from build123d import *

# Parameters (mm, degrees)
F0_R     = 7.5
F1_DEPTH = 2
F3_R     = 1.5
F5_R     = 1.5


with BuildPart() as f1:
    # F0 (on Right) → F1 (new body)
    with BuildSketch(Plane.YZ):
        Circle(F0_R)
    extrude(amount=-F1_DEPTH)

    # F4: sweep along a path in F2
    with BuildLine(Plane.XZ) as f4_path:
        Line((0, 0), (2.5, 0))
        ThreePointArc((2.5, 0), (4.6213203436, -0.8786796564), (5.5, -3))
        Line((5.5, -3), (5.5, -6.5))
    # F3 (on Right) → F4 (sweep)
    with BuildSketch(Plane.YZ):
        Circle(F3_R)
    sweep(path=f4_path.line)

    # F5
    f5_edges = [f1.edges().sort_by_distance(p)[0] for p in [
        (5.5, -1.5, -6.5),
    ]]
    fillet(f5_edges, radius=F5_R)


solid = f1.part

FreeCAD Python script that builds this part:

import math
import FreeCAD as App
import Part
import Sketcher
from FreeCAD import Vector


def edges_at(feature, points):
    """Names of the edges that pass closest to the given points."""
    edges = feature.Shape.Edges
    near = lambda p: min(range(len(edges)), key=lambda i: edges[i].distToShape(Part.Vertex(*p))[0])
    return sorted({f"Edge{near(p) + 1}" for p in points})

doc = App.newDocument("Part")
params = doc.addObject("Spreadsheet::Sheet", "Params")
for row, (alias, value) in enumerate([
    ("sketch1_diameter", "15 mm"),
    ("pad1_length", "2 mm"),
    ("sketch2_diameter", "3 mm"),
    ("sketch3_radius", "3 mm"),
    ("sketch3_width", "2.5 mm"),
    ("sketch3_height", "3.5 mm"),
    ("fillet_radius", "1.5 mm"),
], start=1):
    params.set(f"A{row}", alias)
    params.set(f"B{row}", "=" + value)
    params.setAlias(f"B{row}", alias)

body = doc.addObject("PartDesign::Body", "Body")

# Sketch on YZ plane
sketch1 = body.newObject("Sketcher::SketchObject", "Sketch")
sketch1.AttachmentSupport = (doc.getObject("YZ_Plane"), [""])
sketch1.MapMode = "FlatFace"
sketch1.addGeometry(Part.Circle(Vector(0, 0, 0), Vector(0, 0, 1), 7.5), False)
sketch1.addConstraint(Sketcher.Constraint("Coincident", 0, 3, -1, 1))
sketch1.addConstraint(Sketcher.Constraint("Diameter", 0, 15.0))
sketch1.setExpression("Constraints[1]", "Params.sketch1_diameter")
pad1 = body.newObject("PartDesign::Pad", "Pad")
pad1.Profile = sketch1
pad1.setExpression("Length", "Params.pad1_length")
pad1.Reversed = True

# Sketch on YZ plane
sketch2 = body.newObject("Sketcher::SketchObject", "Sketch001")
sketch2.AttachmentSupport = (doc.getObject("YZ_Plane"), [""])
sketch2.MapMode = "FlatFace"
sketch2.addGeometry(Part.Circle(Vector(0, 0, 0), Vector(0, 0, 1), 1.5), False)
sketch2.addConstraint(Sketcher.Constraint("Coincident", 0, 3, -1, 1))
sketch2.addConstraint(Sketcher.Constraint("Diameter", 0, 3.0))
sketch2.setExpression("Constraints[1]", "Params.sketch2_diameter")

# Sketch on XZ plane
sketch3 = body.newObject("Sketcher::SketchObject", "Sketch002")
sketch3.AttachmentSupport = (doc.getObject("XZ_Plane"), [""])
sketch3.MapMode = "FlatFace"
sketch3.addGeometry(Part.LineSegment(Vector(0, 0, 0), Vector(2.5, 0, 0)), False)
sketch3.addGeometry(Part.ArcOfCircle(Part.Circle(Vector(2.5, -3, 0), Vector(0, 0, 1), 3), math.radians(0), math.radians(90)), False)
sketch3.addGeometry(Part.LineSegment(Vector(5.5, -3, 0), Vector(5.5, -6.5, 0)), False)
sketch3.addConstraint(Sketcher.Constraint("Tangent", 0, 2, 1, 2))
sketch3.addConstraint(Sketcher.Constraint("Tangent", 1, 1, 2, 1))
sketch3.addConstraint(Sketcher.Constraint("Horizontal", 0))
sketch3.addConstraint(Sketcher.Constraint("Vertical", 2))
sketch3.addConstraint(Sketcher.Constraint("Coincident", 0, 1, -1, 1))
sketch3.addConstraint(Sketcher.Constraint("Radius", 1, 3.0))
sketch3.addConstraint(Sketcher.Constraint("DistanceX", 0, 1, 0, 2, 2.5))
sketch3.addConstraint(Sketcher.Constraint("DistanceY", 2, 2, 2, 1, 3.5))
sketch3.setExpression("Constraints[5]", "Params.sketch3_radius")
sketch3.setExpression("Constraints[6]", "Params.sketch3_width")
sketch3.setExpression("Constraints[7]", "Params.sketch3_height")
doc.recompute()

additivepipe = body.newObject("PartDesign::AdditivePipe", "AdditivePipe")
additivepipe.Profile = sketch2
additivepipe.Spine = (sketch3, ["Edge1", "Edge2", "Edge3"])
doc.recompute()

fillet = body.newObject("PartDesign::Fillet", "Fillet")
fillet.Base = (additivepipe, edges_at(additivepipe, [(5.5, -1.5, -6.5)]))
fillet.setExpression("Radius", "Params.fillet_radius")

doc.recompute()
